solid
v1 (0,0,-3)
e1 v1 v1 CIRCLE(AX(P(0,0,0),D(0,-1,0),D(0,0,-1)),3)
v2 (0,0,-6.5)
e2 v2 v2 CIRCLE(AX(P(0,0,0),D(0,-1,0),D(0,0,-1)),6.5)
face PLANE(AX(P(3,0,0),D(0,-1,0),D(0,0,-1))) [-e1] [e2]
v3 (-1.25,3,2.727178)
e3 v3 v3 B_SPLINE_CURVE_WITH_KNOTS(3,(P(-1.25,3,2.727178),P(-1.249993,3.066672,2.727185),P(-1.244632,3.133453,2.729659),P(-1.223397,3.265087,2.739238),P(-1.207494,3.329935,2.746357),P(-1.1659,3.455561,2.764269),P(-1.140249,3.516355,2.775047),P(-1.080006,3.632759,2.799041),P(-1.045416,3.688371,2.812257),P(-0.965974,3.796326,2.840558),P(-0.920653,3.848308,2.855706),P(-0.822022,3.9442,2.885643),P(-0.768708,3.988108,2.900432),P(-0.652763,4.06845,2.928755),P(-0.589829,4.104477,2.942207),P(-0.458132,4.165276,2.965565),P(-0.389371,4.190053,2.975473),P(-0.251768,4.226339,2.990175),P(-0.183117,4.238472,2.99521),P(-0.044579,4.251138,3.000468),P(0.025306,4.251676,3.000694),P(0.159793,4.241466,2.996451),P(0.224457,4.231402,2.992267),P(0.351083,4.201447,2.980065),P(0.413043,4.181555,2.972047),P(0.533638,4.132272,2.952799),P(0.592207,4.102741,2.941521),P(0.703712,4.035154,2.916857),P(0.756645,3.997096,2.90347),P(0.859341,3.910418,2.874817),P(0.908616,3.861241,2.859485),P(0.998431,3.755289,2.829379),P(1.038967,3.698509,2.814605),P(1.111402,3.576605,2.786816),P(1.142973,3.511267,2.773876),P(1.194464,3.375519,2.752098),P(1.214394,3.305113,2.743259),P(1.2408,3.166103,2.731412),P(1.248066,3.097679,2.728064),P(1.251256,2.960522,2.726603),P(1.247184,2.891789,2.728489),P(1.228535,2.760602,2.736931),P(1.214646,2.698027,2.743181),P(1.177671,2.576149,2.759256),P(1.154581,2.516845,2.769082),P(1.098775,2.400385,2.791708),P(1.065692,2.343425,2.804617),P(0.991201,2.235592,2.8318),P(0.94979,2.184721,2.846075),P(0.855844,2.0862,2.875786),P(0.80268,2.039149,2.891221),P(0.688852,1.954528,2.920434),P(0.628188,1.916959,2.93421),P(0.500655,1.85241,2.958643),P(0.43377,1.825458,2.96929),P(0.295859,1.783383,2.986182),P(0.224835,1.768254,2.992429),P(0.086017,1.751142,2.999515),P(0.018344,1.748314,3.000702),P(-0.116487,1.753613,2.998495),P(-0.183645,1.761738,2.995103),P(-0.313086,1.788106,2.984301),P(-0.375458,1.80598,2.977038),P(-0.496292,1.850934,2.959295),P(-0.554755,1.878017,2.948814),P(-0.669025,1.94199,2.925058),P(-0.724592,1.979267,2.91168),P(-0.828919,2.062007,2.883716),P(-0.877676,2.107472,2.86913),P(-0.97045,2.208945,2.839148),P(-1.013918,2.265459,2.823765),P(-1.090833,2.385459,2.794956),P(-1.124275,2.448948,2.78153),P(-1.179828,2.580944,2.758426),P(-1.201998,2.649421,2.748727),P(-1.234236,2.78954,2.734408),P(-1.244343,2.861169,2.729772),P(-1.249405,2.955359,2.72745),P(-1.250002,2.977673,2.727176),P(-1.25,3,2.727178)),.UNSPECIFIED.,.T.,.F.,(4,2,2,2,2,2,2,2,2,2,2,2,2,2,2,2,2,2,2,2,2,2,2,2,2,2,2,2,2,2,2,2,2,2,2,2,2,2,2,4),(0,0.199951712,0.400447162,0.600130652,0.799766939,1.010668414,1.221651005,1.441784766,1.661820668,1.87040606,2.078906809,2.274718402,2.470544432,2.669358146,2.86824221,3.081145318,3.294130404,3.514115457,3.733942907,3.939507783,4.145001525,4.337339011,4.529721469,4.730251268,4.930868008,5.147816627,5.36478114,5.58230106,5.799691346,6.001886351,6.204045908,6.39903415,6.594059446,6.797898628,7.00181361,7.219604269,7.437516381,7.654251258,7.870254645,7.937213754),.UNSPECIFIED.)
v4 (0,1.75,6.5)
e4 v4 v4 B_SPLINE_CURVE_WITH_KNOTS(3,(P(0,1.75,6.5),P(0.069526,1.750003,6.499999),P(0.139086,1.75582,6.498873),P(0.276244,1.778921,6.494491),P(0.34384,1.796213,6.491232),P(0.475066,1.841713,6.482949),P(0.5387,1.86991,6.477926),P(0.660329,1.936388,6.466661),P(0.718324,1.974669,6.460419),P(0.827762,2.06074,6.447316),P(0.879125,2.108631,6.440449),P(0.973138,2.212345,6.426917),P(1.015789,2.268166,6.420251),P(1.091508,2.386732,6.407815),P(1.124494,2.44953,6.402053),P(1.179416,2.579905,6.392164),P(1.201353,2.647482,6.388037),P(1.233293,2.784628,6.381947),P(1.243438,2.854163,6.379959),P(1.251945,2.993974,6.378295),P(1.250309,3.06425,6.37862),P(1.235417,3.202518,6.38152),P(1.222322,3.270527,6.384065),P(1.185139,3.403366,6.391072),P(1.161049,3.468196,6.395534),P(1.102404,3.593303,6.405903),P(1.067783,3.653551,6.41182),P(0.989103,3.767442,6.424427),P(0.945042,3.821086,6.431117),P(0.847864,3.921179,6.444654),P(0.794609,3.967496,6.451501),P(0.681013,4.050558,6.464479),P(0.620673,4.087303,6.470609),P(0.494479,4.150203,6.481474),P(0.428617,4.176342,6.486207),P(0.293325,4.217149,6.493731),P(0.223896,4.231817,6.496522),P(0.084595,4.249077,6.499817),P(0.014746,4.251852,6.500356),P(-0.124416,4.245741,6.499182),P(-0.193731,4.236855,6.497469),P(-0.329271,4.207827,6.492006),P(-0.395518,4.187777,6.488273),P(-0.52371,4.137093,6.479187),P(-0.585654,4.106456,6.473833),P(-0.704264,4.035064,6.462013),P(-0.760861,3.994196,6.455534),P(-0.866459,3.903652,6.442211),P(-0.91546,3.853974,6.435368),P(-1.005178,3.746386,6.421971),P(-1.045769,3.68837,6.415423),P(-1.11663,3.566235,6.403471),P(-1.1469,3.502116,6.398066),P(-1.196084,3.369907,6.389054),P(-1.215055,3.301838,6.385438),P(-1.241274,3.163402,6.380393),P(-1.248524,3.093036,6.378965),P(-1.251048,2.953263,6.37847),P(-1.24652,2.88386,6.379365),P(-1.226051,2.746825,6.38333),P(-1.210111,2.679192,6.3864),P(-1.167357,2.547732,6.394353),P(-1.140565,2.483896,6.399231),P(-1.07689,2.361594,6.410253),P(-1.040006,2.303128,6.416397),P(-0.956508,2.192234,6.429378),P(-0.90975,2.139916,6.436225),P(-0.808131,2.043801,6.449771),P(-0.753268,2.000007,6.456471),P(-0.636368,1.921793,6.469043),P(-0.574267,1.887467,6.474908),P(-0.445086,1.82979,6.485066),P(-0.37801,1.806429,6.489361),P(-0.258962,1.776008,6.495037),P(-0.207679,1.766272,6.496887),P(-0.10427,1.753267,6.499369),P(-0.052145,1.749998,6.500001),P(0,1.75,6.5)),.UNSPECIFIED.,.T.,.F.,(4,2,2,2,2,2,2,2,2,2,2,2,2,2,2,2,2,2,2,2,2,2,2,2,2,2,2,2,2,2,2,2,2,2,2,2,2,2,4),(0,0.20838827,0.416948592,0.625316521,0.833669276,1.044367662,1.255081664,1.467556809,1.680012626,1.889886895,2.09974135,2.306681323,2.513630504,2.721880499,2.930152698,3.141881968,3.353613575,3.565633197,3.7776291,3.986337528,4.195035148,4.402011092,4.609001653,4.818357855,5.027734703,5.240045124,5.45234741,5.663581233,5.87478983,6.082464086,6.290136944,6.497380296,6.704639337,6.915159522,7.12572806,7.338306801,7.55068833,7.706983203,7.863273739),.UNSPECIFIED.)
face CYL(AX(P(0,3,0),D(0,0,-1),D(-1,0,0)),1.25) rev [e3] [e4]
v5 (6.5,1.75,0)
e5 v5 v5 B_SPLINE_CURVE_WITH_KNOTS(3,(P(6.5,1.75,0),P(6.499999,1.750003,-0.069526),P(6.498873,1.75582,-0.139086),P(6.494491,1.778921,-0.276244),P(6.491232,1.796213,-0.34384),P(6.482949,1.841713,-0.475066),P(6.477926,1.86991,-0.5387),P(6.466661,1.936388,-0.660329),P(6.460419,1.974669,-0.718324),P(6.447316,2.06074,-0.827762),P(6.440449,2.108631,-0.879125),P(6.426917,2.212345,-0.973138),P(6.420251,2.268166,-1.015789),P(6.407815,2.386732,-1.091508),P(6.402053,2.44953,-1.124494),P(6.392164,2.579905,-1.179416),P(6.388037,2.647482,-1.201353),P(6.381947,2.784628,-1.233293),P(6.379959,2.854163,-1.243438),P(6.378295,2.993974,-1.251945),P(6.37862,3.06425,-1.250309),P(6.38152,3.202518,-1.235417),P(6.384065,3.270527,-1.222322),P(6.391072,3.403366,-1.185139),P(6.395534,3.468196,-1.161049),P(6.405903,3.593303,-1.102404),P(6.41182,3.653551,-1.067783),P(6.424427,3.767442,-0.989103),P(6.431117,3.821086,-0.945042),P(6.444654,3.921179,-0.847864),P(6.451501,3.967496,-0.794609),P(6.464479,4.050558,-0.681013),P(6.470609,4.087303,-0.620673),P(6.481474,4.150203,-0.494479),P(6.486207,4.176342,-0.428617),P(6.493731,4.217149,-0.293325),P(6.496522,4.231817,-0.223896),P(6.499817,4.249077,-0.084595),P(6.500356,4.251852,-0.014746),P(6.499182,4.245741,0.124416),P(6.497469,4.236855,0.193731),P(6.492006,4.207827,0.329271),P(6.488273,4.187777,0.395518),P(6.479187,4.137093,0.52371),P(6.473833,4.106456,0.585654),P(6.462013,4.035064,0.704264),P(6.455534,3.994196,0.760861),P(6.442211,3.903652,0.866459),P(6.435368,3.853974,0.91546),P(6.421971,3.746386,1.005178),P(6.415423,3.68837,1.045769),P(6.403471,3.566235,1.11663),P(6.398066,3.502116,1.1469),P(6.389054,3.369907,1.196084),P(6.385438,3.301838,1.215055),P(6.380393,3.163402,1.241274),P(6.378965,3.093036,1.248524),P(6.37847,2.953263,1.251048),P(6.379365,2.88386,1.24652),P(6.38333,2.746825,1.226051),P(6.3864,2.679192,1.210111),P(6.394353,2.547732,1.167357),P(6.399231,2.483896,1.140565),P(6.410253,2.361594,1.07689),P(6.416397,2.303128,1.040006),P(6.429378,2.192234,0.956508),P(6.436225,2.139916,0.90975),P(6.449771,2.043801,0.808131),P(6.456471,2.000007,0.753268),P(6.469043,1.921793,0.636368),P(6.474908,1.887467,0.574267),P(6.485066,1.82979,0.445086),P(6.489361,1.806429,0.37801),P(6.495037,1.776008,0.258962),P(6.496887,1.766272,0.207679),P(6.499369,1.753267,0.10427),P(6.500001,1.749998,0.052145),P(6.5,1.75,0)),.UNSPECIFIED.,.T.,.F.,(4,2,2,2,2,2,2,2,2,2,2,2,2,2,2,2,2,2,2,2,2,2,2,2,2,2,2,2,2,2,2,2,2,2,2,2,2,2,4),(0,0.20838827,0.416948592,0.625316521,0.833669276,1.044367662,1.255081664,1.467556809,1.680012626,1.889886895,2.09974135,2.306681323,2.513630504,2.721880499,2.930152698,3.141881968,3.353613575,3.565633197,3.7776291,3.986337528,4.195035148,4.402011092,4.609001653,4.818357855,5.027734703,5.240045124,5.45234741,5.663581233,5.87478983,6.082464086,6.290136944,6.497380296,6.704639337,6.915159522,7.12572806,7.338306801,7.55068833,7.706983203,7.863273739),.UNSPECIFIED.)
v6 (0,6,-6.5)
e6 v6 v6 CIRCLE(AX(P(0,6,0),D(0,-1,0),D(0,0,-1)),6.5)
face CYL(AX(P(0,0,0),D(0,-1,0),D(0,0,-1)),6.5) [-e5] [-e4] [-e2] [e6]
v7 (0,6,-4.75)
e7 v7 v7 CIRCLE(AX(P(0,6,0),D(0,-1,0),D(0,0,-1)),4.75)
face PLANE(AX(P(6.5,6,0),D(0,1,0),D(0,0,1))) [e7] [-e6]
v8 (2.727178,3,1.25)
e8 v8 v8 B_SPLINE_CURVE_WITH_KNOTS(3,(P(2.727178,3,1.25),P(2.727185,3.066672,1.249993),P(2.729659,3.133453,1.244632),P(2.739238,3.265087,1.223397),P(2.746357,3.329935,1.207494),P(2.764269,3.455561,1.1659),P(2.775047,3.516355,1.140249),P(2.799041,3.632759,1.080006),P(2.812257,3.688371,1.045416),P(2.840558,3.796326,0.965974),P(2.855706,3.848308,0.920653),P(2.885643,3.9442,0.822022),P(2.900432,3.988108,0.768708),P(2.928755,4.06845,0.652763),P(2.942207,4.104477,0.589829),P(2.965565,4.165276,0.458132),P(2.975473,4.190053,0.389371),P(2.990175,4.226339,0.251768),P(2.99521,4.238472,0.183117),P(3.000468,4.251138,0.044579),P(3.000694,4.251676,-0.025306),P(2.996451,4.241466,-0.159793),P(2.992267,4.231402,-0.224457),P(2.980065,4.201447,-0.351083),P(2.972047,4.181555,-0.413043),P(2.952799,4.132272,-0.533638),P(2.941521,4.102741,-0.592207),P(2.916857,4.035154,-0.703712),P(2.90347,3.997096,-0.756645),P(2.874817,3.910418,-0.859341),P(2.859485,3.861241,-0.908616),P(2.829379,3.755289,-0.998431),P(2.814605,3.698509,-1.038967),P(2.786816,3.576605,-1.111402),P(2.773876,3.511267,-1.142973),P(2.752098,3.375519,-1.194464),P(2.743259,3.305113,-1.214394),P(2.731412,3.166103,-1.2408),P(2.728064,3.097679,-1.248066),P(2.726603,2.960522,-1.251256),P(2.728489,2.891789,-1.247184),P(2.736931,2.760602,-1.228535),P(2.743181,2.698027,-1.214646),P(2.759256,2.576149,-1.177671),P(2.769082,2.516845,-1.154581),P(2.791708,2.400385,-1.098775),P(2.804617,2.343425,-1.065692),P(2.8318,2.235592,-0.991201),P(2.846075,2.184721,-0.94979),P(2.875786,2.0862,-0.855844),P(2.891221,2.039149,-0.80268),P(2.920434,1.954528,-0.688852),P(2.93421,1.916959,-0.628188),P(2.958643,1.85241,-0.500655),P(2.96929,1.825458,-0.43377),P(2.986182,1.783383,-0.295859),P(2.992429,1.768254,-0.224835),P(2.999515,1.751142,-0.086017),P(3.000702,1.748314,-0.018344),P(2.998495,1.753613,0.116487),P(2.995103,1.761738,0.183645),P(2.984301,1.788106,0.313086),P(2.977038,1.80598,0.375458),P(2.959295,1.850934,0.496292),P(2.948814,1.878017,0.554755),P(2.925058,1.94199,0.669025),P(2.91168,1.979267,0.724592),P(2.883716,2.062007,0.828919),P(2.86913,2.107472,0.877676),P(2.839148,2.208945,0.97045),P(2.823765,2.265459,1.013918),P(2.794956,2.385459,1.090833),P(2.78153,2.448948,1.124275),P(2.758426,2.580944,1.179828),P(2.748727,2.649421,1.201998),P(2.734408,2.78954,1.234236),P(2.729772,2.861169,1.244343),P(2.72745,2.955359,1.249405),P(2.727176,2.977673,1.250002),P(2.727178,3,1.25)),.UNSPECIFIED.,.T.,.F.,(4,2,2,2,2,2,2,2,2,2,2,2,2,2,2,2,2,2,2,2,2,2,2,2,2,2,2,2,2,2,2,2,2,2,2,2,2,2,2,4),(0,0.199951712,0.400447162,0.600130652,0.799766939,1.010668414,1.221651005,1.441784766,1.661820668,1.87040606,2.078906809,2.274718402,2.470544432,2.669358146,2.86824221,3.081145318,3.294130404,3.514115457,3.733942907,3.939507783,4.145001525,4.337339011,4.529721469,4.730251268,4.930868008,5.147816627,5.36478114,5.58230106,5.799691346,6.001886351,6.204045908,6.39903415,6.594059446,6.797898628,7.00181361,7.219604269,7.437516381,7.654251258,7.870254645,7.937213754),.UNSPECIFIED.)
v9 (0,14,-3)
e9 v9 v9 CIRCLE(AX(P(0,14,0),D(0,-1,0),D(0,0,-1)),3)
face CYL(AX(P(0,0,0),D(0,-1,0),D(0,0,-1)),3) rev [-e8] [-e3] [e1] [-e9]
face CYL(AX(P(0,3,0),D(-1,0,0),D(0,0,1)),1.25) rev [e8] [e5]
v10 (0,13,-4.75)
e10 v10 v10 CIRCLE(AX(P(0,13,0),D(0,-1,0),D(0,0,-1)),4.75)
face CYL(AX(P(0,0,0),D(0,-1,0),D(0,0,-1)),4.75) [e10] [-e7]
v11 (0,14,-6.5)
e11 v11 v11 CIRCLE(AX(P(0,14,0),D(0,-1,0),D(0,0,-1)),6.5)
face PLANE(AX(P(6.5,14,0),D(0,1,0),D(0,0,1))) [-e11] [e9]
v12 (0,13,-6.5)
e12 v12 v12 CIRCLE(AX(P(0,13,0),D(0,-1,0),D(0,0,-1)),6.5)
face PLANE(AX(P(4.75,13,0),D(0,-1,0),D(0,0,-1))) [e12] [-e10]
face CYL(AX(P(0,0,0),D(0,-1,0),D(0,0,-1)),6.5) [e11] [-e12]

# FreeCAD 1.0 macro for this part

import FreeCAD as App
import Part
import Sketcher
Q = App.Units.Quantity

doc = App.newDocument("Part")
params = doc.addObject("Spreadsheet::Sheet", "Params")
for row, (alias, value) in enumerate([
    ("sketch1_height", "6 mm"),
    ("sketch1_height2", "7 mm"),
    ("sketch1_height3", "1 mm"),
    ("sketch1_width", "3.5 mm"),
    ("sketch1_width2", "1.75 mm"),
    ("revolution_angle", "360 deg"),
    ("sketch2_height", "6.5 mm"),
    ("sketch2_width", "1.25 mm"),
    ("groove_angle", "360 deg"),
    ("sketch3_width", "6.5 mm"),
    ("sketch3_height", "1.25 mm"),
    ("groove2_angle", "360 deg"),
], start=1):
    params.set(f"A{row}", alias)
    params.set(f"B{row}", "=" + value)
    params.setAlias(f"B{row}", alias)

body = doc.addObject("PartDesign::Body", "Body")

sketch1 = doc.addObject("Sketcher::SketchObject", "Sketch")
body.addObject(sketch1)
sketch1.AttachmentSupport = (doc.XY_Plane, [""])
sketch1.MapMode = "FlatFace"
sketch1.addGeometry([
    Part.LineSegment(App.Vector(3, 0, 0), App.Vector(6.5, 0, 0)),
    Part.LineSegment(App.Vector(6.5, 0, 0), App.Vector(6.5, 6, 0)),
    Part.LineSegment(App.Vector(6.5, 6, 0), App.Vector(4.8, 6, 0)),
    Part.LineSegment(App.Vector(4.8, 6, 0), App.Vector(4.8, 13, 0)),
    Part.LineSegment(App.Vector(4.8, 13, 0), App.Vector(6.5, 13, 0)),
    Part.LineSegment(App.Vector(6.5, 13, 0), App.Vector(6.5, 14, 0)),
    Part.LineSegment(App.Vector(6.5, 14, 0), App.Vector(3, 14, 0)),
    Part.LineSegment(App.Vector(3, 14, 0), App.Vector(3, 0, 0)),
], False)
sketch1.addConstraint([
    Sketcher.Constraint("Coincident", 0, 2, 1, 1),
    Sketcher.Constraint("Coincident", 1, 2, 2, 1),
    Sketcher.Constraint("Coincident", 2, 2, 3, 1),
    Sketcher.Constraint("Coincident", 3, 2, 4, 1),
    Sketcher.Constraint("Coincident", 4, 2, 5, 1),
    Sketcher.Constraint("Coincident", 5, 2, 6, 1),
    Sketcher.Constraint("Coincident", 6, 2, 7, 1),
    Sketcher.Constraint("Coincident", 7, 2, 0, 1),
    Sketcher.Constraint("Horizontal", 0),
    Sketcher.Constraint("Vertical", 1),
    Sketcher.Constraint("Horizontal", 2),
    Sketcher.Constraint("Vertical", 3),
    Sketcher.Constraint("Horizontal", 4),
    Sketcher.Constraint("Vertical", 5),
    Sketcher.Constraint("Horizontal", 6),
    Sketcher.Constraint("Vertical", 7),
    Sketcher.Constraint("PointOnObject", 0, 2, -1),
    Sketcher.Constraint("Vertical", 1, 2, 4, 2),
    Sketcher.Constraint("DistanceY", 1, 1, 1, 2, 6.0),
    Sketcher.Constraint("DistanceY", 3, 1, 3, 2, 7.0),
    Sketcher.Constraint("DistanceY", 5, 1, 5, 2, 1.0),
    Sketcher.Constraint("DistanceX", 0, 1, 0, 2, 3.5),
    Sketcher.Constraint("DistanceX", -1, 1, 6, 2, 3.0),
    Sketcher.Constraint("DistanceX", 2, 2, 2, 1, 1.75),
])
sketch1.setExpression("Constraints[18]", "Params.sketch1_height")
sketch1.setExpression("Constraints[19]", "Params.sketch1_height2")
sketch1.setExpression("Constraints[20]", "Params.sketch1_height3")
sketch1.setExpression("Constraints[21]", "Params.sketch1_width")
sketch1.setExpression("Constraints[23]", "Params.sketch1_width2")
revolution = doc.addObject("PartDesign::Revolution", "Revolution")
body.addObject(revolution)
revolution.Profile = sketch1
revolution.ReferenceAxis = (sketch1, ["V_Axis"])
revolution.setExpression("Angle", "Params.revolution_angle")

sketch2 = doc.addObject("Sketcher::SketchObject", "Sketch001")
body.addObject(sketch2)
sketch2.AttachmentSupport = (doc.YZ_Plane, [""])
sketch2.MapMode = "FlatFace"
sketch2.addGeometry([
    Part.LineSegment(App.Vector(3, 6.5, 0), App.Vector(3, 0, 0)),
    Part.LineSegment(App.Vector(3, 0, 0), App.Vector(4.53, 0, 0)),
    Part.LineSegment(App.Vector(4.53, 0, 0), App.Vector(4.25, 0.28, 0)),
    Part.LineSegment(App.Vector(4.25, 0.28, 0), App.Vector(4.25, 6.5, 0)),
    Part.LineSegment(App.Vector(4.25, 6.5, 0), App.Vector(3, 6.5, 0)),
], False)
sketch2.addGeometry(Part.LineSegment(App.Vector(3, 0, 0), App.Vector(3, 6.5, 0)), True)
sketch2.addConstraint([
    Sketcher.Constraint("Coincident", 0, 2, 1, 1),
    Sketcher.Constraint("Coincident", 1, 2, 2, 1),
    Sketcher.Constraint("Coincident", 2, 2, 3, 1),
    Sketcher.Constraint("Coincident", 3, 2, 4, 1),
    Sketcher.Constraint("Coincident", 4, 2, 0, 1),
    Sketcher.Constraint("Vertical", 0),
    Sketcher.Constraint("Horizontal", 1),
    Sketcher.Constraint("Vertical", 3),
    Sketcher.Constraint("Horizontal", 4),
    Sketcher.Constraint("Vertical", 5),
    Sketcher.Constraint("Coincident", 5, 1, 0, 2),
    Sketcher.Constraint("PointOnObject", 0, 2, -1),
    Sketcher.Constraint("Horizontal", 3, 2, 5, 2),
    Sketcher.Constraint("Angle", 2, Q("135 deg")),
    Sketcher.Constraint("DistanceY", 0, 2, 0, 1, 6.5),
    Sketcher.Constraint("DistanceX", -1, 1, 0, 2, 3.0),
    Sketcher.Constraint("DistanceX", 4, 2, 4, 1, 1.25),
    Sketcher.Constraint("DistanceX", 1, 1, 1, 2, 1.525),
])
sketch2.setExpression("Constraints[14]", "Params.sketch2_height")
sketch2.setExpression("Constraints[16]", "Params.sketch2_width")
groove = doc.addObject("PartDesign::Groove", "Groove")
body.addObject(groove)
groove.Profile = sketch2
groove.ReferenceAxis = (sketch2, ["Axis0"])
groove.setExpression("Angle", "Params.groove_angle")

sketch3 = doc.addObject("Sketcher::SketchObject", "Sketch002")
body.addObject(sketch3)
sketch3.AttachmentSupport = (doc.XZ_Plane, [""])
sketch3.MapMode = "FlatFace"
sketch3.AttachmentOffset = App.Placement(App.Vector(0, 0, -3), App.Rotation())
sketch3.addGeometry([
    Part.LineSegment(App.Vector(6.5, 0, 0), App.Vector(0, 0, 0)),
    Part.LineSegment(App.Vector(0, 0, 0), App.Vector(0, 1.52, 0)),
    Part.LineSegment(App.Vector(0, 1.52, 0), App.Vector(0.28, 1.25, 0)),
    Part.LineSegment(App.Vector(0.28, 1.25, 0), App.Vector(6.5, 1.25, 0)),
    Part.LineSegment(App.Vector(6.5, 1.25, 0), App.Vector(6.5, 0, 0)),
], False)
sketch3.addConstraint([
    Sketcher.Constraint("Coincident", 0, 2, 1, 1),
    Sketcher.Constraint("Coincident", 1, 2, 2, 1),
    Sketcher.Constraint("Coincident", 2, 2, 3, 1),
    Sketcher.Constraint("Coincident", 3, 2, 4, 1),
    Sketcher.Constraint("Coincident", 4, 2, 0, 1),
    Sketcher.Constraint("Horizontal", 0),
    Sketcher.Constraint("Vertical", 1),
    Sketcher.Constraint("Horizontal", 3),
    Sketcher.Constraint("Vertical", 4),
    Sketcher.Constraint("Coincident", 0, 2, -1, 1),
    Sketcher.Constraint("Angle", 2, Q("-45 deg")),
    Sketcher.Constraint("DistanceX", 0, 2, 0, 1, 6.5),
    Sketcher.Constraint("DistanceY", 4, 2, 4, 1, 1.25),
    Sketcher.Constraint("DistanceX", 3, 1, 3, 2, 6.225),
])
sketch3.setExpression("Constraints[11]", "Params.sketch3_width")
sketch3.setExpression("Constraints[12]", "Params.sketch3_height")
groove2 = doc.addObject("PartDesign::Groove", "Groove001")
body.addObject(groove2)
groove2.Profile = sketch3
groove2.ReferenceAxis = (sketch3, ["H_Axis"])
groove2.setExpression("Angle", "Params.groove2_angle")

doc.recompute()
